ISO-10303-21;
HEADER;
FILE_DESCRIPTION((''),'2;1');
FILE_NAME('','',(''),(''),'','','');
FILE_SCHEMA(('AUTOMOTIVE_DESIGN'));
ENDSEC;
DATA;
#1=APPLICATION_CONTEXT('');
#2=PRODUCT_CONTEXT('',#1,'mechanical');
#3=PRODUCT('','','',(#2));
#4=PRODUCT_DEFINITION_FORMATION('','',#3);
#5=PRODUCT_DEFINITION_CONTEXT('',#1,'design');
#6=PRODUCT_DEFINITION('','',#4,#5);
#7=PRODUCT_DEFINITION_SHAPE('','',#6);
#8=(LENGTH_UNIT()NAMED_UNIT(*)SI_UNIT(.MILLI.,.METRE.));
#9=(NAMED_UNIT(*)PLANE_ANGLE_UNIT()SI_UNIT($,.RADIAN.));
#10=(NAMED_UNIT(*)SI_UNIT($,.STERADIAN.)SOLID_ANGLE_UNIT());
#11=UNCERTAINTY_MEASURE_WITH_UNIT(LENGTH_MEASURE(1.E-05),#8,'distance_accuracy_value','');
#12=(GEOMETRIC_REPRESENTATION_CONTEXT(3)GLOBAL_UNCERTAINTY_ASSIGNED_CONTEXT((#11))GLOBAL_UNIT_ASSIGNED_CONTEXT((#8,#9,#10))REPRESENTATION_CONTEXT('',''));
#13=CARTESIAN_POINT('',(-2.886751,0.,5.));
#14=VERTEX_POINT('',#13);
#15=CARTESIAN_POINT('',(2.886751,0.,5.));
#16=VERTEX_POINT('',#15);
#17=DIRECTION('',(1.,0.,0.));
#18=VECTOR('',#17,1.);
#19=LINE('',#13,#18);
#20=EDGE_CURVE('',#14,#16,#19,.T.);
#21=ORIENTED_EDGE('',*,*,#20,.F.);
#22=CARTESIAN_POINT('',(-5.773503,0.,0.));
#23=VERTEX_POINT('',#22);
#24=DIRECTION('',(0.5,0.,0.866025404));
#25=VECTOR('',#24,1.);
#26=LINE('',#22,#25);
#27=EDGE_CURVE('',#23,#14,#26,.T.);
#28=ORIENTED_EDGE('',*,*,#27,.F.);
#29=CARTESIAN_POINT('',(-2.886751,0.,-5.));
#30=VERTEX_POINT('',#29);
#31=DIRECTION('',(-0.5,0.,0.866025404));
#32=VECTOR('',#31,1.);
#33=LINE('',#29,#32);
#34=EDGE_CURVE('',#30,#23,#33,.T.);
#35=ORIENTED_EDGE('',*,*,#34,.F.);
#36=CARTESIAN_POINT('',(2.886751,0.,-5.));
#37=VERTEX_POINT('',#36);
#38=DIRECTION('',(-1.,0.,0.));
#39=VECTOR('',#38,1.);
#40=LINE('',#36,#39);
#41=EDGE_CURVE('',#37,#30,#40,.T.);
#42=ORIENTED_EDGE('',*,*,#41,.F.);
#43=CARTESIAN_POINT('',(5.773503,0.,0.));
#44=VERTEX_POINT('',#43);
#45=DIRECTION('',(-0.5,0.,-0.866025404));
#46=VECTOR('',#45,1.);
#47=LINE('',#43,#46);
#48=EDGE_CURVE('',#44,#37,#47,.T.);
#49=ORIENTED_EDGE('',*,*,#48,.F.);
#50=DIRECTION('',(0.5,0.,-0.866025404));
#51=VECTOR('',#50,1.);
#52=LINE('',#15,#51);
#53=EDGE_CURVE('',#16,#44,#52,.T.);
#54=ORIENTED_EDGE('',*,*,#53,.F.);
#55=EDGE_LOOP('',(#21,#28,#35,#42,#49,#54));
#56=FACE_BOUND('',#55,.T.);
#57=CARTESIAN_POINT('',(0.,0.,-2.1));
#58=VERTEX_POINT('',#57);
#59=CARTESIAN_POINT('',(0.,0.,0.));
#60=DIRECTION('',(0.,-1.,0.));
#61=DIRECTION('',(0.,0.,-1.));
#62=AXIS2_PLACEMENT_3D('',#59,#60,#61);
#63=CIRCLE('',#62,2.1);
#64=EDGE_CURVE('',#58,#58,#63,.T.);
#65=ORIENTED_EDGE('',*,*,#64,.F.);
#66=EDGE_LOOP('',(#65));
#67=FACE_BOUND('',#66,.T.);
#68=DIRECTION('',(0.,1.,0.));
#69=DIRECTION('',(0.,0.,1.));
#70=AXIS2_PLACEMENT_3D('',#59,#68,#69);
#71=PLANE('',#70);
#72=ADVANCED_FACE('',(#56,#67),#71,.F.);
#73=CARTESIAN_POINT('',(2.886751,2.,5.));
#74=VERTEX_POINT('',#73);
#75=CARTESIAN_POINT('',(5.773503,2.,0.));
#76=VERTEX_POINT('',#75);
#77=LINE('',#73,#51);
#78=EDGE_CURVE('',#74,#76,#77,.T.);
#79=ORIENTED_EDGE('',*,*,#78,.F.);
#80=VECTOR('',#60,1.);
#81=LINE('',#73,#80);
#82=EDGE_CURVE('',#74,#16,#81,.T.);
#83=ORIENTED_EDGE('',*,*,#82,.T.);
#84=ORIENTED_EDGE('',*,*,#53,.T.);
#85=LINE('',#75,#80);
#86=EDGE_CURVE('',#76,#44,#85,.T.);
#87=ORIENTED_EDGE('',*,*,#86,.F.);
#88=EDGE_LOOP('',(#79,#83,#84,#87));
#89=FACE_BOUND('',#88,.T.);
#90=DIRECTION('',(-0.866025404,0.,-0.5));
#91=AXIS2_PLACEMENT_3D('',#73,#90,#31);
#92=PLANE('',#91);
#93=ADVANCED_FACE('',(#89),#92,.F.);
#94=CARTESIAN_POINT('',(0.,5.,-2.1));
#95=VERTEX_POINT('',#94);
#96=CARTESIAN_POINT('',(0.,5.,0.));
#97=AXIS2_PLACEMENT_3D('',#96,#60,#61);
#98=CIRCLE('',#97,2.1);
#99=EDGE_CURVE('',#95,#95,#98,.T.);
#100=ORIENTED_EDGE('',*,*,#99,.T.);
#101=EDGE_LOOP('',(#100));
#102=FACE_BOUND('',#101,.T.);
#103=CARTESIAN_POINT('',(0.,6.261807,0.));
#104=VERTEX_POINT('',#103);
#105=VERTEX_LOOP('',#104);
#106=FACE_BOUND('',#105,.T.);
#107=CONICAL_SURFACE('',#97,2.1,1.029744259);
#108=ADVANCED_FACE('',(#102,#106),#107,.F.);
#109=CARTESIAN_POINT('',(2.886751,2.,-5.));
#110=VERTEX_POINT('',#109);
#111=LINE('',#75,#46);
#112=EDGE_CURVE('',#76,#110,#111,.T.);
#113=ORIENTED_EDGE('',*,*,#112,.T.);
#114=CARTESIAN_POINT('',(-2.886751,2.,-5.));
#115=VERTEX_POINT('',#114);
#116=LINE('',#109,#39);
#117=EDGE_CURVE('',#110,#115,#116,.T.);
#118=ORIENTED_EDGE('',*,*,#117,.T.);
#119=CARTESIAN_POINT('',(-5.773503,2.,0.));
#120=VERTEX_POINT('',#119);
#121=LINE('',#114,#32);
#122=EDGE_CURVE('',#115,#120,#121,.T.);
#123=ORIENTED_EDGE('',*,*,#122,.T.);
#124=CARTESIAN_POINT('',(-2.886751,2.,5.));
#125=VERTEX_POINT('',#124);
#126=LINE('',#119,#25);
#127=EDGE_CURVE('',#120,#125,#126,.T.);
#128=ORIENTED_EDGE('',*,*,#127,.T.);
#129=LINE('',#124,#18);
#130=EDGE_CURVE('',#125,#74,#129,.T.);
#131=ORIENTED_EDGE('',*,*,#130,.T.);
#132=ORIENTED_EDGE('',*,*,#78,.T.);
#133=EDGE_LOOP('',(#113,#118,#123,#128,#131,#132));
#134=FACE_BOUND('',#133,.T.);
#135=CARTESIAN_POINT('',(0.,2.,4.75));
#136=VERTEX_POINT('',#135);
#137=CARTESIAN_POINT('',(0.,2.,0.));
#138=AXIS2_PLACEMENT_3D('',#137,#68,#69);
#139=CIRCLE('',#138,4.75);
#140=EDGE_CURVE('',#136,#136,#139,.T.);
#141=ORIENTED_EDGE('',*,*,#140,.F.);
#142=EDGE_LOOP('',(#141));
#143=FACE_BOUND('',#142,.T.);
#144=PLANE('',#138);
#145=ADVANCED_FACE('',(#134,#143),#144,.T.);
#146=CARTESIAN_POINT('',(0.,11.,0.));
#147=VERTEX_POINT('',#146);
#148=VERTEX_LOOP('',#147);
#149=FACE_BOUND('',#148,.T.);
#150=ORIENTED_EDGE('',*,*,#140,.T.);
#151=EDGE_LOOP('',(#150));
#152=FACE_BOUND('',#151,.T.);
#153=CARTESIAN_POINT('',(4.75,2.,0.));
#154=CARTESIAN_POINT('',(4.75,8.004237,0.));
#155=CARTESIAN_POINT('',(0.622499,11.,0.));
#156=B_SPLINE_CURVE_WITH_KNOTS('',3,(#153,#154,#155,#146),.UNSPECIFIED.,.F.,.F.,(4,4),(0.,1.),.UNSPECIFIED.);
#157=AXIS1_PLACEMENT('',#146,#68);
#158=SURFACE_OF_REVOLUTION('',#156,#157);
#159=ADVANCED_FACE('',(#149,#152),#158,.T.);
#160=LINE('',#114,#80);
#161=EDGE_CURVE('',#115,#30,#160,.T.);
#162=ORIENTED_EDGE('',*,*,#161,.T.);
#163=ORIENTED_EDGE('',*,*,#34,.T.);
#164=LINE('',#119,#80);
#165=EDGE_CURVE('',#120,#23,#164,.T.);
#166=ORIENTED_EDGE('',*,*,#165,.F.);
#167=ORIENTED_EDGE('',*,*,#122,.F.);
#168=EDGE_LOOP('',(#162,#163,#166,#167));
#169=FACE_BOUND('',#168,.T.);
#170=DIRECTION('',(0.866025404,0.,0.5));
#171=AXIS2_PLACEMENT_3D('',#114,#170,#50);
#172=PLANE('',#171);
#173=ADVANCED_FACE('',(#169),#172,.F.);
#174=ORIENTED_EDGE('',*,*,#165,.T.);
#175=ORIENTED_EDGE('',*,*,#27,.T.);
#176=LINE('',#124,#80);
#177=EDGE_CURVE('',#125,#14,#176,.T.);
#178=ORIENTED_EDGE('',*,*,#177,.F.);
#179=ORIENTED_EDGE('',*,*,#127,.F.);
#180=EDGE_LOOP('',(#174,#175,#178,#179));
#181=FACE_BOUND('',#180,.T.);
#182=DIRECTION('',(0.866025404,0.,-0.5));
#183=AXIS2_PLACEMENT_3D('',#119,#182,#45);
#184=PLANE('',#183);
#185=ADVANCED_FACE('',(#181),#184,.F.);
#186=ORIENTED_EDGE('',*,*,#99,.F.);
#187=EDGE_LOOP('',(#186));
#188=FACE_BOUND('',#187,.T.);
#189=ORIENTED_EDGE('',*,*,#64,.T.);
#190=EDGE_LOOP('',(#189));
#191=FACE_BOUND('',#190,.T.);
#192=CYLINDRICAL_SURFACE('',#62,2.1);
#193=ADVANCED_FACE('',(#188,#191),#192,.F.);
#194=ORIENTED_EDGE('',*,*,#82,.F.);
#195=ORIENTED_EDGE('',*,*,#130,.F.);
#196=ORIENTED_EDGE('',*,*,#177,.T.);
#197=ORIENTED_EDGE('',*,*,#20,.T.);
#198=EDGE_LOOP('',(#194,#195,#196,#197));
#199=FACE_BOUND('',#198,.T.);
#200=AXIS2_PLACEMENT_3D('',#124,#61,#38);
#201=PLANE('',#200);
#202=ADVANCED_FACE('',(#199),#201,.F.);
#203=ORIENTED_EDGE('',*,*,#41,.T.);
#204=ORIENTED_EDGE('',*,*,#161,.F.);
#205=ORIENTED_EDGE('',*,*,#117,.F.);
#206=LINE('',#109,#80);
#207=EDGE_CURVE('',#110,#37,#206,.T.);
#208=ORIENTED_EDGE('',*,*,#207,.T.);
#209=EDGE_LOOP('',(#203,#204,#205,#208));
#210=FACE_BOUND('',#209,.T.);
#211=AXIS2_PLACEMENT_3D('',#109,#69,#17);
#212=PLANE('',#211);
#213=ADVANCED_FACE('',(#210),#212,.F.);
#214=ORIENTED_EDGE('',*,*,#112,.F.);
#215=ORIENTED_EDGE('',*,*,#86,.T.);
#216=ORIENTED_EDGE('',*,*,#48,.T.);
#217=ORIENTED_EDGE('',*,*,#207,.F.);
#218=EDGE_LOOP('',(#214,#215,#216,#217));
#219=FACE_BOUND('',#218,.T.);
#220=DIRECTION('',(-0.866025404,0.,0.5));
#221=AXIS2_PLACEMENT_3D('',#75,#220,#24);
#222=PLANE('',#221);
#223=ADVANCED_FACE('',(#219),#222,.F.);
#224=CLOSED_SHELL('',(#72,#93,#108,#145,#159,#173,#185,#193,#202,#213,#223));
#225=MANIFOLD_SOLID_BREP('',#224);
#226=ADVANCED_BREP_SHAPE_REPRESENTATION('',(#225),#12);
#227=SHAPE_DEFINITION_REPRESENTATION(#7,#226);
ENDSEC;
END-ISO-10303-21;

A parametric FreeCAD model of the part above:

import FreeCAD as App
import Part
import Sketcher
from FreeCAD import Vector
Q = App.Units.Quantity


def add_polygon(sketch, points):
    """Adds a closed chain of lines whose ends are joined by coincident constraints."""
    first, n = sketch.GeometryCount, len(points)
    for a, b in zip(points, points[1:] + points[:1]):
        sketch.addGeometry(Part.LineSegment(App.Vector(*a, 0), App.Vector(*b, 0)), False)
    for i in range(n):
        sketch.addConstraint(Sketcher.Constraint("Coincident", first + i, 2, first + (i + 1) % n, 1))

doc = App.newDocument("Part")
body = doc.addObject("PartDesign::Body", "Body")

sketch1 = body.newObject("Sketcher::SketchObject", "Sketch")
sketch1.AttachmentSupport = (doc.getObject("XZ_Plane"), [""])
sketch1.MapMode = "FlatFace"
add_polygon(sketch1, [(3, -5), (-3, -5), (-6, 0), (-3, 5), (3, 5), (6, 0)])
sketch1.addConstraint(Sketcher.Constraint("Horizontal", 0))
sketch1.addConstraint(Sketcher.Constraint("Horizontal", 3))
sketch1.addConstraint(Sketcher.Constraint("Symmetric", 0, 2, 3, 2, -1, 1))
sketch1.addConstraint(Sketcher.Constraint("Symmetric", 1, 2, 4, 2, -1, 1))
sketch1.addConstraint(Sketcher.Constraint("PointOnObject", 1, 2, -1))
sketch1.addConstraint(Sketcher.Constraint("Parallel", 2, 5))
sketch1.addConstraint(Sketcher.Constraint("Vertical", 0, 2, 2, 2))
sketch1.addConstraint(Sketcher.Constraint("Angle", 1, Q("120 deg")))
sketch1.addConstraint(Sketcher.Constraint("DistanceY", 0, 2, -1, 1, Q("5 mm")))
sketch1.addConstraint(Sketcher.Constraint("DistanceX", 0, 2, 0, 1, Q("5.773503 mm")))
pad1 = body.newObject("PartDesign::Pad", "Pad")
pad1.Profile = sketch1
pad1.Length = 2
pad1.Reversed = True

sketch2 = body.newObject("Sketcher::SketchObject", "Sketch001")
sketch2.AttachmentSupport = (doc.getObject("XY_Plane"), [""])
sketch2.MapMode = "FlatFace"
sketch2.addGeometry(Part.LineSegment(Vector(0, 2, 0), Vector(4.75, 2, 0)), False)
sketch2.addGeometry(Part.BSplineCurve([Vector(0, 11, 0), Vector(0.622499, 11, 0), Vector(4.75, 8.004237, 0), Vector(4.75, 2, 0)], [4, 4], [0, 1], False, 3, [1, 1, 1, 1], False), False)
sketch2.addGeometry(Part.LineSegment(Vector(0, 11, 0), Vector(0, 2, 0)), False)
sketch2.addConstraint(Sketcher.Constraint("Block", 1))
sketch2.addConstraint(Sketcher.Constraint("Coincident", 0, 2, 1, 2))
sketch2.addConstraint(Sketcher.Constraint("Coincident", 1, 1, 2, 1))
sketch2.addConstraint(Sketcher.Constraint("Coincident", 2, 2, 0, 1))
sketch2.addConstraint(Sketcher.Constraint("Horizontal", 0))
sketch2.addConstraint(Sketcher.Constraint("Vertical", 2))
revolution = body.newObject("PartDesign::Revolution", "Revolution")
revolution.Profile = sketch2
revolution.ReferenceAxis = (sketch2, ["V_Axis"])
revolution.Angle = 360

sketch3 = body.newObject("Sketcher::SketchObject", "Sketch002")
sketch3.AttachmentSupport = (doc.getObject("XZ_Plane"), [""])
sketch3.MapMode = "FlatFace"
sketch3.addGeometry(Part.Circle(Vector(0, 0, 0), Vector(0, 0, 1), 2.1), False)
sketch3.addConstraint(Sketcher.Constraint("Coincident", 0, 3, -1, 1))
sketch3.addConstraint(Sketcher.Constraint("Diameter", 0, Q("4.2 mm")))
doc.recompute()
hole = body.newObject("PartDesign::Hole", "Hole")
hole.Profile = sketch3
hole.ThreadType = "None"
hole.Diameter = 4.2
hole.DepthType = "Dimension"
hole.Depth = 5
hole.DrillPoint = "Angled"
hole.DrillPointAngle = 118

doc.recompute()
